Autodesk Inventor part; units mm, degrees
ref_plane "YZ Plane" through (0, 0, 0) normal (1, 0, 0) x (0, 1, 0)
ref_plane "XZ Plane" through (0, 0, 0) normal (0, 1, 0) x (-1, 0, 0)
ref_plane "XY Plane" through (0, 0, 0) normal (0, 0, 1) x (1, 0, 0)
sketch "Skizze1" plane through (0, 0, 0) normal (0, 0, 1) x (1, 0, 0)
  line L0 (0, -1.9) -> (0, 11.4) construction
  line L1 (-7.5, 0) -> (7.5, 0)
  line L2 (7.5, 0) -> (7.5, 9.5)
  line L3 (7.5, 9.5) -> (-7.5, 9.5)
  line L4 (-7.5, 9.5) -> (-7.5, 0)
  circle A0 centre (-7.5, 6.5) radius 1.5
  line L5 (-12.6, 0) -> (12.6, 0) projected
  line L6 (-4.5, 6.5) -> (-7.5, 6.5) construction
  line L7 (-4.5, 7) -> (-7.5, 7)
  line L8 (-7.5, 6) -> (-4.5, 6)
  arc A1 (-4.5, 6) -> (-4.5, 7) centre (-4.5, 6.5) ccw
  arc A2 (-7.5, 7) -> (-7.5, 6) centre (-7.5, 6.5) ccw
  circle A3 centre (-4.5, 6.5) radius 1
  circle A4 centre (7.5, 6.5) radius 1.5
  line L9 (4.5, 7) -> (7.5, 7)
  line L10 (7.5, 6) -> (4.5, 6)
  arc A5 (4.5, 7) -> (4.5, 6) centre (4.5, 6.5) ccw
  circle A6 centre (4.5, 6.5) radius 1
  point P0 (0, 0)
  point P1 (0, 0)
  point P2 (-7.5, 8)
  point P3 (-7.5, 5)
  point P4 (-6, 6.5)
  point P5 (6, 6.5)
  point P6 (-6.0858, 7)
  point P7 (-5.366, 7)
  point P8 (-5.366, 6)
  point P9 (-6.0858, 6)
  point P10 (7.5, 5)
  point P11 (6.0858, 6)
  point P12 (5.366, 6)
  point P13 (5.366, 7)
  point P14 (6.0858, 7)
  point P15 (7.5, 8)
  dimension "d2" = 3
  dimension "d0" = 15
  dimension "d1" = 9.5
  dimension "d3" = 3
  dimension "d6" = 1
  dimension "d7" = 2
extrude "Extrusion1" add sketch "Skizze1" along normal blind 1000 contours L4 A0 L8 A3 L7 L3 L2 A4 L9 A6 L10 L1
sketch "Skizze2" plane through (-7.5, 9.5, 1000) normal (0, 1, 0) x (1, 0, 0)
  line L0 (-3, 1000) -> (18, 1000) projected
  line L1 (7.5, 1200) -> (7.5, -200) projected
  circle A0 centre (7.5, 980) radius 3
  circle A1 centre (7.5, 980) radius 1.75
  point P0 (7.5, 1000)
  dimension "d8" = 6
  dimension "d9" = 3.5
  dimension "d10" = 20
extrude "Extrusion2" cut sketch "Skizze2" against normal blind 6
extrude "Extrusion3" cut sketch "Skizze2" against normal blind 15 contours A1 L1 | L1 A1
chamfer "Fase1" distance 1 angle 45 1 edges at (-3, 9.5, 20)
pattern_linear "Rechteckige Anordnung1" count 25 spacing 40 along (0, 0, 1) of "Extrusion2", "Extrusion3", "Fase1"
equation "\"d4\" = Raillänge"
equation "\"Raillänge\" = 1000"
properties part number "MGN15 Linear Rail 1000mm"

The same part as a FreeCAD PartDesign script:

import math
import FreeCAD as App
import Part
import Sketcher
Q = App.Units.Quantity


def edges_at(feature, points):
    """Names of the edges that pass closest to the given points."""
    edges = feature.Shape.Edges
    near = lambda p: min(range(len(edges)), key=lambda i: edges[i].distToShape(Part.Vertex(*p))[0])
    return sorted({f"Edge{near(p) + 1}" for p in points})

doc = App.newDocument("Part")
body = doc.addObject("PartDesign::Body", "Body")

# Sketch on XY plane
sketch1 = body.newObject("Sketcher::SketchObject", "Sketch")
sketch1.AttachmentSupport = (doc.getObject("XY_Plane"), [""])
sketch1.MapMode = "FlatFace"
sketch1.addGeometry(Part.LineSegment(App.Vector(-7.5, 5, 0), App.Vector(-7.5, 0, 0)), False)
sketch1.addGeometry(Part.LineSegment(App.Vector(-7.5, 0, 0), App.Vector(7.5, 0, 0)), False)
sketch1.addGeometry(Part.LineSegment(App.Vector(7.5, 0, 0), App.Vector(7.5, 5, 0)), False)
sketch1.addGeometry(Part.ArcOfCircle(Part.Circle(App.Vector(7.5, 6.5, 0), App.Vector(0, 0, 1), 1.5), math.radians(-160.528779), math.radians(-90)), False)
sketch1.addGeometry(Part.LineSegment(App.Vector(6.085786, 6, 0), App.Vector(5.366025, 6, 0)), False)
sketch1.addGeometry(Part.ArcOfCircle(Part.Circle(App.Vector(4.5, 6.5, 0), App.Vector(0, 0, 1), 1), math.radians(30), math.radians(330)), False)
sketch1.addGeometry(Part.LineSegment(App.Vector(5.366025, 7, 0), App.Vector(6.085786, 7, 0)), False)
sketch1.addGeometry(Part.ArcOfCircle(Part.Circle(App.Vector(7.5, 6.5, 0), App.Vector(0, 0, 1), 1.5), math.radians(90), math.radians(160.528779)), False)
sketch1.addGeometry(Part.LineSegment(App.Vector(7.5, 8, 0), App.Vector(7.5, 9.5, 0)), False)
sketch1.addGeometry(Part.LineSegment(App.Vector(7.5, 9.5, 0), App.Vector(-7.5, 9.5, 0)), False)
sketch1.addGeometry(Part.LineSegment(App.Vector(-7.5, 9.5, 0), App.Vector(-7.5, 8, 0)), False)
sketch1.addGeometry(Part.ArcOfCircle(Part.Circle(App.Vector(-7.5, 6.5, 0), App.Vector(0, 0, 1), 1.5), math.radians(19.471221), math.radians(90)), False)
sketch1.addGeometry(Part.LineSegment(App.Vector(-6.085786, 7, 0), App.Vector(-5.366025, 7, 0)), False)
sketch1.addGeometry(Part.ArcOfCircle(Part.Circle(App.Vector(-4.5, 6.5, 0), App.Vector(0, 0, 1), 1), math.radians(-150), math.radians(150)), False)
sketch1.addGeometry(Part.LineSegment(App.Vector(-5.366025, 6, 0), App.Vector(-6.085786, 6, 0)), False)
sketch1.addGeometry(Part.ArcOfCircle(Part.Circle(App.Vector(-7.5, 6.5, 0), App.Vector(0, 0, 1), 1.5), math.radians(-90), math.radians(-19.471221)), False)
sketch1.addConstraint(Sketcher.Constraint("Coincident", 0, 2, 1, 1))
sketch1.addConstraint(Sketcher.Constraint("Coincident", 1, 2, 2, 1))
sketch1.addConstraint(Sketcher.Constraint("Coincident", 2, 2, 3, 2))
sketch1.addConstraint(Sketcher.Constraint("Coincident", 3, 1, 4, 1))
sketch1.addConstraint(Sketcher.Constraint("Coincident", 4, 2, 5, 2))
sketch1.addConstraint(Sketcher.Constraint("Coincident", 5, 1, 6, 1))
sketch1.addConstraint(Sketcher.Constraint("Coincident", 6, 2, 7, 2))
sketch1.addConstraint(Sketcher.Constraint("Coincident", 7, 1, 8, 1))
sketch1.addConstraint(Sketcher.Constraint("Coincident", 8, 2, 9, 1))
sketch1.addConstraint(Sketcher.Constraint("Coincident", 9, 2, 10, 1))
sketch1.addConstraint(Sketcher.Constraint("Coincident", 10, 2, 11, 2))
sketch1.addConstraint(Sketcher.Constraint("Coincident", 11, 1, 12, 1))
sketch1.addConstraint(Sketcher.Constraint("Coincident", 12, 2, 13, 2))
sketch1.addConstraint(Sketcher.Constraint("Coincident", 13, 1, 14, 1))
sketch1.addConstraint(Sketcher.Constraint("Coincident", 14, 2, 15, 2))
sketch1.addConstraint(Sketcher.Constraint("Coincident", 15, 1, 0, 1))
sketch1.addConstraint(Sketcher.Constraint("Vertical", 0))
sketch1.addConstraint(Sketcher.Constraint("Horizontal", 1))
sketch1.addConstraint(Sketcher.Constraint("Vertical", 2))
sketch1.addConstraint(Sketcher.Constraint("Horizontal", 4))
sketch1.addConstraint(Sketcher.Constraint("Horizontal", 6))
sketch1.addConstraint(Sketcher.Constraint("Vertical", 8))
sketch1.addConstraint(Sketcher.Constraint("Horizontal", 9))
sketch1.addConstraint(Sketcher.Constraint("Vertical", 10))
sketch1.addConstraint(Sketcher.Constraint("Horizontal", 12))
sketch1.addConstraint(Sketcher.Constraint("Horizontal", 14))
sketch1.addConstraint(Sketcher.Constraint("Coincident", 7, 3, 3, 3))
sketch1.addConstraint(Sketcher.Constraint("Coincident", 15, 3, 11, 3))
sketch1.addConstraint(Sketcher.Constraint("Equal", 3, 7))
sketch1.addConstraint(Sketcher.Constraint("Equal", 7, 11))
sketch1.addConstraint(Sketcher.Constraint("Equal", 5, 13))
sketch1.addConstraint(Sketcher.Constraint("Equal", 11, 15))
sketch1.addConstraint(Sketcher.Constraint("Symmetric", 0, 2, 1, 2, -1, 1))
sketch1.addConstraint(Sketcher.Constraint("Symmetric", 3, 3, 11, 3, -2))
sketch1.addConstraint(Sketcher.Constraint("Symmetric", 5, 3, 13, 3, -2))
sketch1.addConstraint(Sketcher.Constraint("Horizontal", 3, 3, 5, 3))
sketch1.addConstraint(Sketcher.Constraint("Horizontal", 6, 2, 11, 1))
sketch1.addConstraint(Sketcher.Constraint("Horizontal", 4, 2, 13, 1))
sketch1.addConstraint(Sketcher.Constraint("Vertical", 15, 3, 0, 2))
sketch1.addConstraint(Sketcher.Constraint("Vertical", 4, 2, 5, 1))
sketch1.addConstraint(Sketcher.Constraint("Vertical", 2, 2, 7, 1))
sketch1.addConstraint(Sketcher.Constraint("Vertical", 0, 2, 9, 2))
sketch1.addConstraint(Sketcher.Constraint("Radius", 5, Q("1 mm")))
sketch1.addConstraint(Sketcher.Constraint("Radius", 3, Q("1.5 mm")))
sketch1.addConstraint(Sketcher.Constraint("DistanceX", 1, 1, 1, 2, Q("15 mm")))
sketch1.addConstraint(Sketcher.Constraint("DistanceX", 5, 3, 3, 3, Q("3 mm")))
sketch1.addConstraint(Sketcher.Constraint("DistanceY", 2, 2, 3, 1, Q("1 mm")))
sketch1.addConstraint(Sketcher.Constraint("DistanceY", 3, 3, 8, 2, Q("3 mm")))
sketch1.addConstraint(Sketcher.Constraint("DistanceY", -1, 1, 8, 2, Q("9.5 mm")))
pad1 = body.newObject("PartDesign::Pad", "Pad")
pad1.Profile = sketch1
pad1.Length = 1000

# Sketch on XZ plane
sketch2 = body.newObject("Sketcher::SketchObject", "Sketch001")
sketch2.AttachmentSupport = (doc.getObject("XZ_Plane"), [""])
sketch2.MapMode = "FlatFace"
sketch2.AttachmentOffset = App.Placement(App.Vector(0, 0, -9.5), App.Rotation())
sketch2.addGeometry(Part.Circle(App.Vector(0, 20, 0), App.Vector(0, 0, 1), 3), False)
sketch2.addConstraint(Sketcher.Constraint("PointOnObject", 0, 3, -2))
sketch2.addConstraint(Sketcher.Constraint("Diameter", 0, Q("6 mm")))
sketch2.addConstraint(Sketcher.Constraint("DistanceY", -1, 1, 0, 3, Q("20 mm")))
pocket1 = body.newObject("PartDesign::Pocket", "Pocket")
pocket1.Profile = sketch2
pocket1.Length = 6
pocket1.Reversed = True

# Sketch on XZ plane
sketch3 = body.newObject("Sketcher::SketchObject", "Sketch002")
sketch3.AttachmentSupport = (doc.getObject("XZ_Plane"), [""])
sketch3.MapMode = "FlatFace"
sketch3.AttachmentOffset = App.Placement(App.Vector(0, 0, -9.5), App.Rotation())
sketch3.addGeometry(Part.Circle(App.Vector(0, 20, 0), App.Vector(0, 0, 1), 1.75), False)
sketch3.addConstraint(Sketcher.Constraint("PointOnObject", 0, 3, -2))
sketch3.addConstraint(Sketcher.Constraint("Diameter", 0, Q("3.5 mm")))
sketch3.addConstraint(Sketcher.Constraint("DistanceY", -1, 1, 0, 3, Q("20 mm")))
pocket2 = body.newObject("PartDesign::Pocket", "Pocket001")
pocket2.Profile = sketch3
pocket2.Length = 15
pocket2.Reversed = True
doc.recompute()

chamfer = body.newObject("PartDesign::Chamfer", "Chamfer")
chamfer.Base = (pocket2, edges_at(pocket2, [(-3, 9.5, 20)]))
chamfer.Size = 1
doc.recompute()

linearpattern = body.newObject("PartDesign::LinearPattern", "LinearPattern")
linearpattern.Originals = [pocket1, pocket2, chamfer]
linearpattern.Direction = (doc.getObject("Z_Axis"), [""])
linearpattern.Mode = "offset"
linearpattern.Offset = 40
linearpattern.Occurrences = 25
body.Tip = linearpattern

doc.recompute()
